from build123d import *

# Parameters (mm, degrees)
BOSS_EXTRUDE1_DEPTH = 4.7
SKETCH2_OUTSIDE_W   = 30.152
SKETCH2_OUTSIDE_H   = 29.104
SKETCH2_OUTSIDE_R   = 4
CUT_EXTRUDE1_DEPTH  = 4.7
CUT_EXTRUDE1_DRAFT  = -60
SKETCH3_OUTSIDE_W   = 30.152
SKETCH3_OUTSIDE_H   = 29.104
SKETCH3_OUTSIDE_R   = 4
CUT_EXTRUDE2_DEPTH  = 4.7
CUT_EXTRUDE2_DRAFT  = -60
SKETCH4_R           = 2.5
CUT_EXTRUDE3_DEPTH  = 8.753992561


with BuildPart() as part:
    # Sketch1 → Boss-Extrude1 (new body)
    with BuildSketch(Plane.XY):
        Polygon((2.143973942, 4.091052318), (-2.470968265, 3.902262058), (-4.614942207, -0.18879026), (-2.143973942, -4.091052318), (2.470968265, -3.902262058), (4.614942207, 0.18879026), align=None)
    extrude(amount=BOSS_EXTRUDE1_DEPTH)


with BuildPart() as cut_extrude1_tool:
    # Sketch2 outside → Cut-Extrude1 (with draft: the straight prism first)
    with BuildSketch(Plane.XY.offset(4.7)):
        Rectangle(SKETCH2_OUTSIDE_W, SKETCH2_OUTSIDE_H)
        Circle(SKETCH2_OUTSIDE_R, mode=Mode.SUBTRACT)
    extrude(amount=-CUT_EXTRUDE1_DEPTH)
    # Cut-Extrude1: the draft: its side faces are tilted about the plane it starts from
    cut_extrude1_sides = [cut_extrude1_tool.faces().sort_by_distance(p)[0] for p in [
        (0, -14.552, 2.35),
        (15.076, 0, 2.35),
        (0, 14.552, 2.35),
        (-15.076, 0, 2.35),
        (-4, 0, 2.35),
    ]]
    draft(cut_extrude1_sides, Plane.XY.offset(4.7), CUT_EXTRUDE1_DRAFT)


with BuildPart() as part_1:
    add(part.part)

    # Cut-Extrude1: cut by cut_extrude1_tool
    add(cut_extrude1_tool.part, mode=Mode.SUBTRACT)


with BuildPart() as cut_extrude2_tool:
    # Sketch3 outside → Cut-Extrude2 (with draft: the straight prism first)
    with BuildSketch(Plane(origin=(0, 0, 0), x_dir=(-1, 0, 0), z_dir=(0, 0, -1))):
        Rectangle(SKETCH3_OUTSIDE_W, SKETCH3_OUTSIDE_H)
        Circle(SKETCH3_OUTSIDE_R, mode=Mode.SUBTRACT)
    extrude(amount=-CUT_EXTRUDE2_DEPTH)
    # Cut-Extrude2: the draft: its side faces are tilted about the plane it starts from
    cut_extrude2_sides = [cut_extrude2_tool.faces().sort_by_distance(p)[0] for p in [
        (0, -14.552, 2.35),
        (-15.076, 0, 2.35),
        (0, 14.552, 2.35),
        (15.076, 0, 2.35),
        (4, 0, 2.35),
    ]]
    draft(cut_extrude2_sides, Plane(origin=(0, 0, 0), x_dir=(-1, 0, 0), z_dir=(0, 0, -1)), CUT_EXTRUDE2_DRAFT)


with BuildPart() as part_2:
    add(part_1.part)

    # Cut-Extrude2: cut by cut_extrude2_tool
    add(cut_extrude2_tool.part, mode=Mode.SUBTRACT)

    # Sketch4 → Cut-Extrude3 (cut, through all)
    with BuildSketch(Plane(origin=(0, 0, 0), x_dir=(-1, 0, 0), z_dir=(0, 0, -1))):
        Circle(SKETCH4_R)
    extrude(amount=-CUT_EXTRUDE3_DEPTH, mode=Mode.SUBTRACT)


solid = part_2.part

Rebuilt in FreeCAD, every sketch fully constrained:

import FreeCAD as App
import Part
import Sketcher
from FreeCAD import Vector


def faces_at(feature, points):
    """Names of the faces that lie closest to the given points."""
    faces = feature.Shape.Faces
    near = lambda p: min(range(len(faces)), key=lambda i: faces[i].distToShape(Part.Vertex(*p))[0])
    return sorted({f"Face{near(p) + 1}" for p in points})

doc = App.newDocument("Part")
body = doc.addObject("PartDesign::Body", "Body")

# Sketch on XY plane
sketch1 = body.newObject("Sketcher::SketchObject", "Sketch")
sketch1.AttachmentSupport = (doc.getObject("XY_Plane"), [""])
sketch1.MapMode = "FlatFace"
sketch1.addGeometry(Part.LineSegment(Vector(2.1, 4.1, 0), Vector(-2.5, 3.9, 0)), False)
sketch1.addGeometry(Part.LineSegment(Vector(-2.5, 3.9, 0), Vector(-4.6, -0.2, 0)), False)
sketch1.addGeometry(Part.LineSegment(Vector(-4.6, -0.2, 0), Vector(-2.1, -4.1, 0)), False)
sketch1.addGeometry(Part.LineSegment(Vector(-2.1, -4.1, 0), Vector(2.5, -3.9, 0)), False)
sketch1.addGeometry(Part.LineSegment(Vector(2.5, -3.9, 0), Vector(4.6, 0.2, 0)), False)
sketch1.addGeometry(Part.LineSegment(Vector(4.6, 0.2, 0), Vector(2.1, 4.1, 0)), False)
sketch1.addConstraint(Sketcher.Constraint("Coincident", 0, 2, 1, 1))
sketch1.addConstraint(Sketcher.Constraint("Coincident", 1, 2, 2, 1))
sketch1.addConstraint(Sketcher.Constraint("Coincident", 2, 2, 3, 1))
sketch1.addConstraint(Sketcher.Constraint("Coincident", 3, 2, 4, 1))
sketch1.addConstraint(Sketcher.Constraint("Coincident", 4, 2, 5, 1))
sketch1.addConstraint(Sketcher.Constraint("Coincident", 5, 2, 0, 1))
sketch1.addConstraint(Sketcher.Constraint("Symmetric", 0, 2, 3, 2, -1, 1))
sketch1.addConstraint(Sketcher.Constraint("Symmetric", 1, 2, 4, 2, -1, 1))
sketch1.addConstraint(Sketcher.Constraint("Symmetric", 2, 2, 5, 2, -1, 1))
sketch1.addConstraint(Sketcher.Constraint("Equal", 0, 1))
sketch1.addConstraint(Sketcher.Constraint("Equal", 1, 2))
sketch1.addConstraint(Sketcher.Constraint("DistanceX", 0, 2, -1, 1, 2.470968))
sketch1.addConstraint(Sketcher.Constraint("DistanceY", 1, 2, -1, 1, 0.18879))
sketch1.addConstraint(Sketcher.Constraint("DistanceX", 1, 2, 2, 2, 2.470968))
sketch1.addConstraint(Sketcher.Constraint("DistanceY", 2, 2, 3, 2, 0.18879))
pad1 = body.newObject("PartDesign::Pad", "Pad")
pad1.Profile = sketch1
pad1.Length = 4.7
body2 = doc.addObject("PartDesign::Body", "Body001")

# Sketch on XY plane
sketch2 = body2.newObject("Sketcher::SketchObject", "Sketch001")
sketch2.AttachmentSupport = (doc.getObject("XY_Plane001"), [""])
sketch2.MapMode = "FlatFace"
sketch2.AttachmentOffset = App.Placement(Vector(0, 0, 4.7), App.Rotation())
sketch2.addGeometry(Part.LineSegment(Vector(-15.1, 14.6, 0), Vector(-15.1, -14.6, 0)), False)
sketch2.addGeometry(Part.LineSegment(Vector(-15.1, -14.6, 0), Vector(15.1, -14.6, 0)), False)
sketch2.addGeometry(Part.LineSegment(Vector(15.1, -14.6, 0), Vector(15.1, 14.6, 0)), False)
sketch2.addGeometry(Part.LineSegment(Vector(15.1, 14.6, 0), Vector(-15.1, 14.6, 0)), False)
sketch2.addGeometry(Part.Circle(Vector(0, 0, 0), Vector(0, 0, 1), 4), False)
sketch2.addConstraint(Sketcher.Constraint("Coincident", 0, 2, 1, 1))
sketch2.addConstraint(Sketcher.Constraint("Coincident", 1, 2, 2, 1))
sketch2.addConstraint(Sketcher.Constraint("Coincident", 2, 2, 3, 1))
sketch2.addConstraint(Sketcher.Constraint("Coincident", 3, 2, 0, 1))
sketch2.addConstraint(Sketcher.Constraint("Vertical", 0))
sketch2.addConstraint(Sketcher.Constraint("Horizontal", 1))
sketch2.addConstraint(Sketcher.Constraint("Vertical", 2))
sketch2.addConstraint(Sketcher.Constraint("Horizontal", 3))
sketch2.addConstraint(Sketcher.Constraint("Coincident", 4, 3, -1, 1))
sketch2.addConstraint(Sketcher.Constraint("Symmetric", 0, 2, 2, 2, -1, 1))
sketch2.addConstraint(Sketcher.Constraint("Diameter", 4, 8.0))
sketch2.addConstraint(Sketcher.Constraint("DistanceX", 1, 1, 1, 2, 30.152))
sketch2.addConstraint(Sketcher.Constraint("DistanceY", 0, 2, 0, 1, 29.104))
pad2 = body2.newObject("PartDesign::Pad", "Pad001")
pad2.Profile = sketch2
pad2.Length = 4.7
pad2.Reversed = True
doc.recompute()

datumplane = body2.newObject("PartDesign::Plane", "DatumPlane")
datumplane.AttachmentSupport = (doc.getObject("XY_Plane001"), [""])
datumplane.MapMode = "FlatFace"
datumplane.AttachmentOffset = App.Placement(Vector(0, 0, 4.7), App.Rotation())
draft = body2.newObject("PartDesign::Draft", "Draft")
draft.Base = (pad2, faces_at(pad2, [
    (0, -14.552, 2.35),
    (15.076, 0, 2.35),
    (0, 14.552, 2.35),
    (-15.076, 0, 2.35),
    (-4, 0, 2.35),
]))
draft.NeutralPlane = (datumplane, [""])
draft.Angle = 60
draft.Reversed = True
doc.recompute()

boolean = body.newObject("PartDesign::Boolean", "Boolean")
boolean.Type = "Cut"
boolean.addObjects([body2])
body3 = doc.addObject("PartDesign::Body", "Body002")

# Sketch on XY plane
sketch3 = body3.newObject("Sketcher::SketchObject", "Sketch002")
sketch3.AttachmentSupport = (doc.getObject("XY_Plane002"), [""])
sketch3.MapMode = "FlatFace"
sketch3.addGeometry(Part.LineSegment(Vector(15.1, 14.6, 0), Vector(15.1, -14.6, 0)), False)
sketch3.addGeometry(Part.LineSegment(Vector(15.1, -14.6, 0), Vector(-15.1, -14.6, 0)), False)
sketch3.addGeometry(Part.LineSegment(Vector(-15.1, -14.6, 0), Vector(-15.1, 14.6, 0)), False)
sketch3.addGeometry(Part.LineSegment(Vector(-15.1, 14.6, 0), Vector(15.1, 14.6, 0)), False)
sketch3.addGeometry(Part.Circle(Vector(0, 0, 0), Vector(0, 0, 1), 4), False)
sketch3.addConstraint(Sketcher.Constraint("Coincident", 0, 2, 1, 1))
sketch3.addConstraint(Sketcher.Constraint("Coincident", 1, 2, 2, 1))
sketch3.addConstraint(Sketcher.Constraint("Coincident", 2, 2, 3, 1))
sketch3.addConstraint(Sketcher.Constraint("Coincident", 3, 2, 0, 1))
sketch3.addConstraint(Sketcher.Constraint("Vertical", 0))
sketch3.addConstraint(Sketcher.Constraint("Horizontal", 1))
sketch3.addConstraint(Sketcher.Constraint("Vertical", 2))
sketch3.addConstraint(Sketcher.Constraint("Horizontal", 3))
sketch3.addConstraint(Sketcher.Constraint("Coincident", 4, 3, -1, 1))
sketch3.addConstraint(Sketcher.Constraint("Symmetric", 0, 2, 2, 2, -1, 1))
sketch3.addConstraint(Sketcher.Constraint("Diameter", 4, 8.0))
sketch3.addConstraint(Sketcher.Constraint("DistanceX", 1, 2, 1, 1, 30.152))
sketch3.addConstraint(Sketcher.Constraint("DistanceY", 0, 2, 0, 1, 29.104))
pad3 = body3.newObject("PartDesign::Pad", "Pad002")
pad3.Profile = sketch3
pad3.Length = 4.7
doc.recompute()

draft2 = body3.newObject("PartDesign::Draft", "Draft001")
draft2.Base = (pad3, faces_at(pad3, [
    (0, -14.552, 2.35),
    (-15.076, 0, 2.35),
    (0, 14.552, 2.35),
    (15.076, 0, 2.35),
    (4, 0, 2.35),
]))
draft2.NeutralPlane = (doc.getObject("XY_Plane002"), [""])
draft2.Angle = 60
draft2.Reversed = False
doc.recompute()

boolean2 = body.newObject("PartDesign::Boolean", "Boolean001")
boolean2.Type = "Cut"
boolean2.addObjects([body3])

# Sketch on XY plane
sketch4 = body.newObject("Sketcher::SketchObject", "Sketch003")
sketch4.AttachmentSupport = (doc.getObject("XY_Plane"), [""])
sketch4.MapMode = "FlatFace"
sketch4.addGeometry(Part.Circle(Vector(0, 0, 0), Vector(0, 0, 1), 2.5), False)
sketch4.addConstraint(Sketcher.Constraint("Coincident", 0, 3, -1, 1))
sketch4.addConstraint(Sketcher.Constraint("Diameter", 0, 5.0))
pocket1 = body.newObject("PartDesign::Pocket", "Pocket")
pocket1.Profile = sketch4
pocket1.Type = "ThroughAll"
pocket1.Reversed = True

doc.recompute()
